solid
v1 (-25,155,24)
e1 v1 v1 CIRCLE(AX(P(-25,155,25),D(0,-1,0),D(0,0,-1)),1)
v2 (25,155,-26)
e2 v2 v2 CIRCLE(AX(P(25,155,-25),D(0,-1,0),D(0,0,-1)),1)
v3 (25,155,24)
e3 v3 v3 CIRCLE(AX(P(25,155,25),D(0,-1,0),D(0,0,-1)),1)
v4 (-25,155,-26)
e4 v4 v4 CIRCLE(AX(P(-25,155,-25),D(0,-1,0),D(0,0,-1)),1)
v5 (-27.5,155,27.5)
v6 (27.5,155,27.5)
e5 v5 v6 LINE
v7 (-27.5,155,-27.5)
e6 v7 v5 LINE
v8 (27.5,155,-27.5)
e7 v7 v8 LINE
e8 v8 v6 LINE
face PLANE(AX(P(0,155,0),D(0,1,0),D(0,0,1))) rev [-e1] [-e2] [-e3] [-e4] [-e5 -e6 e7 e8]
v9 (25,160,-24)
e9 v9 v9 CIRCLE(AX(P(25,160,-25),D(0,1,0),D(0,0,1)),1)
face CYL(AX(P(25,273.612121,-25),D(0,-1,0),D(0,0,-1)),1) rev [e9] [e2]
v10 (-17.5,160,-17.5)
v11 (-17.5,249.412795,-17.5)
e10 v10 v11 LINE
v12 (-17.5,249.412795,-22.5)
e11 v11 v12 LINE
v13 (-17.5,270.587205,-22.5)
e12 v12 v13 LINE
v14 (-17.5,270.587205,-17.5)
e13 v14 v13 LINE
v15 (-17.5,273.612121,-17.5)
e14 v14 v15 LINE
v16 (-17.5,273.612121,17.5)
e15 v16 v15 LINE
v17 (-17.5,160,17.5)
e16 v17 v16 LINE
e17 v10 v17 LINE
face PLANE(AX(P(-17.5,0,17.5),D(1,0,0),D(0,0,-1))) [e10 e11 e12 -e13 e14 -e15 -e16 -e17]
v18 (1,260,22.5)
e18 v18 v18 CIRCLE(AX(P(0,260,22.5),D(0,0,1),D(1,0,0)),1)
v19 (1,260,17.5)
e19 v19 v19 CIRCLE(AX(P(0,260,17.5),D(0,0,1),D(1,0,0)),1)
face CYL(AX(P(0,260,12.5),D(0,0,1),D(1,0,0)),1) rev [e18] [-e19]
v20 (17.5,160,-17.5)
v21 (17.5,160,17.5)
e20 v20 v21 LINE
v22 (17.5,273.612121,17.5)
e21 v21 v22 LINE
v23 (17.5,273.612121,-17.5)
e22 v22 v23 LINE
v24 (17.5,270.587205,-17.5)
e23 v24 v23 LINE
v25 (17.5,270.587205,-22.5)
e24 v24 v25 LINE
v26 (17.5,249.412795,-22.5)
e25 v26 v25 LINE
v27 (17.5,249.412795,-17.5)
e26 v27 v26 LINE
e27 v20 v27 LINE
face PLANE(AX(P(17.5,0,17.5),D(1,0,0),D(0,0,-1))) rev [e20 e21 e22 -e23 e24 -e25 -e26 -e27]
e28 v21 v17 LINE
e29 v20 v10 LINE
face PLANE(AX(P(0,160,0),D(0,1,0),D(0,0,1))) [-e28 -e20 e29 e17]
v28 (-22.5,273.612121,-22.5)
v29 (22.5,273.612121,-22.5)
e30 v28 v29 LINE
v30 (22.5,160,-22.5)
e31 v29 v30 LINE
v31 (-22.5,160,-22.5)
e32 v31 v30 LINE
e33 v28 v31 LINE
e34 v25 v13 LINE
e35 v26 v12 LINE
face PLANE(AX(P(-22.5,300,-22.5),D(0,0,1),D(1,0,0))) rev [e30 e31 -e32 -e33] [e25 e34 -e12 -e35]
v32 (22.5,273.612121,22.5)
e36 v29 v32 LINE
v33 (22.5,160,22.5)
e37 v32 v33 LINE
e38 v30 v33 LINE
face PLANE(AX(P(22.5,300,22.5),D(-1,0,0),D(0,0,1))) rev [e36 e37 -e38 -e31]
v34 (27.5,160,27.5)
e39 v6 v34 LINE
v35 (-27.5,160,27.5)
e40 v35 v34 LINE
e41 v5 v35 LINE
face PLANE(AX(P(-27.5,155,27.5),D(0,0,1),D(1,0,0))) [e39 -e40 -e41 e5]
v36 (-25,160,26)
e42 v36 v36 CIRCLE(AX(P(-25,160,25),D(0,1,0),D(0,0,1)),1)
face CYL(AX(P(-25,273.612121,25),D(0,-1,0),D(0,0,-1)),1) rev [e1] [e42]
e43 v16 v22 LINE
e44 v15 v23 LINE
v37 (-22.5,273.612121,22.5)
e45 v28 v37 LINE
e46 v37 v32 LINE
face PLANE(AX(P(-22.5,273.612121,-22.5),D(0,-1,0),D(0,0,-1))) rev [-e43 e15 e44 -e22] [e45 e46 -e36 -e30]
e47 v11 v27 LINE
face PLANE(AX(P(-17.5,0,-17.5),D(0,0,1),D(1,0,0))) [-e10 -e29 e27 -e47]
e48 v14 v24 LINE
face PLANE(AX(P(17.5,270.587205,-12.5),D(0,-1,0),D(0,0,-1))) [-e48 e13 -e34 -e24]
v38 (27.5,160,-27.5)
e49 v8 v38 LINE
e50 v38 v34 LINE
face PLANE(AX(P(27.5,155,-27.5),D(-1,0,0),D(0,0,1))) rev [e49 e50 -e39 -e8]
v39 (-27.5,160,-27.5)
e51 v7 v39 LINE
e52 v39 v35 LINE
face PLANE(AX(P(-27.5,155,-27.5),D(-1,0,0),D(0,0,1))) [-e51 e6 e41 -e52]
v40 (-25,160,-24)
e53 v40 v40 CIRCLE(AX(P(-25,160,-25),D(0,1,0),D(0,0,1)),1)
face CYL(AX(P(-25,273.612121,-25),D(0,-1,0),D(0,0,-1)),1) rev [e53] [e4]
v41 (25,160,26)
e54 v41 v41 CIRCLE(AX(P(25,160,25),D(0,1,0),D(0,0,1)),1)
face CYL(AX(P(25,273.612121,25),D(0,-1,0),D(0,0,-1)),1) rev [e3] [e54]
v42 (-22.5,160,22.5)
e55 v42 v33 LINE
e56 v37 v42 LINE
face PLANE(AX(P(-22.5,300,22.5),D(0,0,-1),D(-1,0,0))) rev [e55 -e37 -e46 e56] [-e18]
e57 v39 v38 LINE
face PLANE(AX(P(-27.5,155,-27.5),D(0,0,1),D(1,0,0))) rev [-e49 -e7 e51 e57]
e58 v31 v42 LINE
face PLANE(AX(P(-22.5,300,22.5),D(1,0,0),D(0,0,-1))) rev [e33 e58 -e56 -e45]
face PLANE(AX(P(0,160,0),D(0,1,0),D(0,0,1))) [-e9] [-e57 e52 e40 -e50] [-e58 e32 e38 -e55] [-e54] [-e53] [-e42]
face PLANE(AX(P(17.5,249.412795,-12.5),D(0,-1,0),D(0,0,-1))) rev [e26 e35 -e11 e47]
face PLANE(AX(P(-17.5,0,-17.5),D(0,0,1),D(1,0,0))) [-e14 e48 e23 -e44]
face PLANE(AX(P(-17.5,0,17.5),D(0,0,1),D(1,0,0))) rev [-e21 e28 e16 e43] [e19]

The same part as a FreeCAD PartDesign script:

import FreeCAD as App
import Part
import Sketcher

V = App.Vector
Q = App.Units.Quantity


def add_polygon(sketch, points):
    """Adds a closed chain of lines whose ends are joined by coincident constraints."""
    first, n = sketch.GeometryCount, len(points)
    for a, b in zip(points, points[1:] + points[:1]):
        sketch.addGeometry(Part.LineSegment(App.Vector(*a, 0), App.Vector(*b, 0)), False)
    for i in range(n):
        sketch.addConstraint(Sketcher.Constraint("Coincident", first + i, 2, first + (i + 1) % n, 1))

doc = App.newDocument("Part")
body = doc.addObject("PartDesign::Body", "Body")

# Sketch on XZ plane
sketch1 = body.newObject("Sketcher::SketchObject", "Sketch")
sketch1.AttachmentSupport = (doc.getObject("XZ_Plane"), [""])
sketch1.MapMode = "FlatFace"
add_polygon(sketch1, [(-22, -22), (-22, 22), (22, 22), (22, -22)])  # lines 0-3
sketch1.addConstraint([
    Sketcher.Constraint("Vertical", 0),
    Sketcher.Constraint("Horizontal", 1),
    Sketcher.Constraint("Vertical", 2),
    Sketcher.Constraint("Horizontal", 3),
    Sketcher.Constraint("Symmetric", 0, 2, 2, 2, -1, 1),
    Sketcher.Constraint("Equal", 3, 0),
    Sketcher.Constraint("DistanceX", 1, 1, 1, 2, Q("45 mm")),
])
pad1 = body.newObject("PartDesign::Pad", "Pad")
pad1.Profile = sketch1
pad1.Length = 300
pad1.Reversed = True

# Sketch on YZ plane
sketch2 = body.newObject("Sketcher::SketchObject", "Sketch001")
sketch2.AttachmentSupport = (doc.getObject("YZ_Plane"), [""])
sketch2.MapMode = "FlatFace"
sketch2.AttachmentOffset = App.Placement(V(0, 0, -22.5), App.Rotation())
add_polygon(sketch2, [(34, 4), (0, 4), (0, 22), (34, 22)])  # lines 0-3
sketch2.addConstraint([
    Sketcher.Constraint("Horizontal", 0),
    Sketcher.Constraint("Vertical", 1),
    Sketcher.Constraint("Horizontal", 2),
    Sketcher.Constraint("Vertical", 3),
    Sketcher.Constraint("PointOnObject", 0, 2, -2),
    Sketcher.Constraint("DistanceX", 0, 2, 0, 1, Q("34 mm")),
    Sketcher.Constraint("DistanceY", 1, 1, 1, 2, Q("18 mm")),
    Sketcher.Constraint("DistanceY", -1, 1, 0, 2, Q("4.5 mm")),
])
pocket1 = body.newObject("PartDesign::Pocket", "Pocket")
pocket1.Profile = sketch2
pocket1.Type = "ThroughAll"
pocket1.Reversed = True

# Sketch on XZ plane
sketch3 = body.newObject("Sketcher::SketchObject", "Sketch002")
sketch3.AttachmentSupport = (doc.getObject("XZ_Plane"), [""])
sketch3.MapMode = "FlatFace"
sketch3.AttachmentOffset = App.Placement(V(0, 0, -300), App.Rotation())
add_polygon(sketch3, [(-18, -18), (-18, 18), (18, 18), (18, -18)])  # lines 0-3
sketch3.addConstraint([
    Sketcher.Constraint("Vertical", 0),
    Sketcher.Constraint("Horizontal", 1),
    Sketcher.Constraint("Vertical", 2),
    Sketcher.Constraint("Horizontal", 3),
    Sketcher.Constraint("Symmetric", 0, 2, 2, 2, -1, 1),
    Sketcher.Constraint("Equal", 3, 0),
    Sketcher.Constraint("DistanceX", 1, 1, 1, 2, Q("35 mm")),
])
pocket2 = body.newObject("PartDesign::Pocket", "Pocket001")
pocket2.Profile = sketch3
pocket2.Type = "ThroughAll"
pocket2.Reversed = True

# Sketch on XY plane
sketch4 = body.newObject("Sketcher::SketchObject", "Sketch003")
sketch4.AttachmentSupport = (doc.getObject("XY_Plane"), [""])
sketch4.MapMode = "FlatFace"
sketch4.AttachmentOffset = App.Placement(V(0, 0, -22.5), App.Rotation())
add_polygon(sketch4, [(18, 271), (18, 249), (-18, 249), (-18, 271)])  # lines 0-3
sketch4.addConstraint([
    Sketcher.Constraint("Vertical", 0),
    Sketcher.Constraint("Horizontal", 1),
    Sketcher.Constraint("Vertical", 2),
    Sketcher.Constraint("Horizontal", 3),
    Sketcher.Constraint("DistanceX", 1, 2, 1, 1, Q("35 mm")),
    Sketcher.Constraint("DistanceX", -1, 1, 0, 2, Q("17.5 mm")),
    Sketcher.Constraint("DistanceY", 0, 2, 0, 1, Q("21.17441 mm")),
    Sketcher.Constraint("DistanceY", -1, 1, 0, 2, Q("249.412795 mm")),
])
pocket3 = body.newObject("PartDesign::Pocket", "Pocket002")
pocket3.Profile = sketch4
pocket3.Length = 10
pocket3.Reversed = True

# Sketch on XY plane
sketch5 = body.newObject("Sketcher::SketchObject", "Sketch004")
sketch5.AttachmentSupport = (doc.getObject("XY_Plane"), [""])
sketch5.MapMode = "FlatFace"
sketch5.AttachmentOffset = App.Placement(V(0, 0, 22.5), App.Rotation())
sketch5.addGeometry(Part.Circle(V(0, 260, 0), V(0, 0, 1), 1), False)
sketch5.addConstraint([
    Sketcher.Constraint("PointOnObject", 0, 3, -2),
    Sketcher.Constraint("Diameter", 0, Q("2 mm")),
    Sketcher.Constraint("DistanceY", -1, 1, 0, 3, Q("260 mm")),
])
pocket4 = body.newObject("PartDesign::Pocket", "Pocket003")
pocket4.Profile = sketch5
pocket4.Length = 10

# Sketch on XY plane
sketch6 = body.newObject("Sketcher::SketchObject", "Sketch005")
sketch6.AttachmentSupport = (doc.getObject("XY_Plane"), [""])
sketch6.MapMode = "FlatFace"
sketch6.AttachmentOffset = App.Placement(V(0, 0, 22.5), App.Rotation())
add_polygon(sketch6, [(-22, 300), (-22, 274), (22, 274), (22, 300)])  # lines 0-3
sketch6.addConstraint([
    Sketcher.Constraint("Vertical", 0),
    Sketcher.Constraint("Horizontal", 1),
    Sketcher.Constraint("Vertical", 2),
    Sketcher.Constraint("Horizontal", 3),
    Sketcher.Constraint("DistanceX", 1, 1, 1, 2, Q("45 mm")),
    Sketcher.Constraint("DistanceY", -1, 1, 2, 2, Q("300 mm")),
    Sketcher.Constraint("DistanceX", 0, 2, -1, 1, Q("22.5 mm")),
    Sketcher.Constraint("DistanceY", 0, 2, 0, 1, Q("26.387879 mm")),
])
pocket5 = body.newObject("PartDesign::Pocket", "Pocket004")
pocket5.Profile = sketch6
pocket5.Type = "ThroughAll"

# Sketch on YZ plane
sketch7 = body.newObject("Sketcher::SketchObject", "Sketch006")
sketch7.AttachmentSupport = (doc.getObject("YZ_Plane"), [""])
sketch7.MapMode = "FlatFace"
add_polygon(sketch7, [(160, 22), (0, 22), (0, -22), (160, -22)])  # lines 0-3
sketch7.addConstraint([
    Sketcher.Constraint("Horizontal", 0),
    Sketcher.Constraint("Vertical", 1),
    Sketcher.Constraint("Horizontal", 2),
    Sketcher.Constraint("Vertical", 3),
    Sketcher.Constraint("Symmetric", 0, 2, 1, 2, -1, 1),
    Sketcher.Constraint("DistanceX", 0, 2, 0, 1, Q("160 mm")),
    Sketcher.Constraint("DistanceY", 1, 2, 1, 1, Q("45 mm")),
])
pocket6 = body.newObject("PartDesign::Pocket", "Pocket005")
pocket6.Profile = sketch7
pocket6.Type = "ThroughAll"
pocket6.Midplane = True

# Sketch on XZ plane
sketch8 = body.newObject("Sketcher::SketchObject", "Sketch007")
sketch8.AttachmentSupport = (doc.getObject("XZ_Plane"), [""])
sketch8.MapMode = "FlatFace"
sketch8.AttachmentOffset = App.Placement(V(0, 0, -160), App.Rotation())
add_polygon(sketch8, [(-28, 28), (-28, -28), (28, -28), (28, 28)])  # lines 0-3
sketch8.addConstraint([
    Sketcher.Constraint("Vertical", 0),
    Sketcher.Constraint("Horizontal", 1),
    Sketcher.Constraint("Vertical", 2),
    Sketcher.Constraint("Horizontal", 3),
    Sketcher.Constraint("Symmetric", 0, 2, 2, 2, -1, 1),
    Sketcher.Constraint("Equal", 3, 0),
    Sketcher.Constraint("DistanceX", 1, 1, 1, 2, Q("55 mm")),
])
pad2 = body.newObject("PartDesign::Pad", "Pad001")
pad2.Profile = sketch8
pad2.Length = 5

# Sketch on XZ plane
sketch9 = body.newObject("Sketcher::SketchObject", "Sketch008")
sketch9.AttachmentSupport = (doc.getObject("XZ_Plane"), [""])
sketch9.MapMode = "FlatFace"
sketch9.AttachmentOffset = App.Placement(V(0, 0, -155), App.Rotation())
sketch9.addGeometry([
    Part.Circle(V(25, 25, 0), V(0, 0, 1), 1),
    Part.Circle(V(-25, 25, 0), V(0, 0, 1), 1),
    Part.Circle(V(-25, -25, 0), V(0, 0, 1), 1),
    Part.Circle(V(25, -25, 0), V(0, 0, 1), 1),
], False)
sketch9.addConstraint([
    Sketcher.Constraint("Equal", 0, 1),
    Sketcher.Constraint("Equal", 1, 2),
    Sketcher.Constraint("Equal", 2, 3),
    Sketcher.Constraint("Symmetric", 0, 3, 2, 3, -1, 1),
    Sketcher.Constraint("Symmetric", 1, 3, 3, 3, -1, 1),
    Sketcher.Constraint("Symmetric", 0, 3, 1, 3, -2),
    Sketcher.Constraint("Diameter", 0, Q("2 mm")),
    Sketcher.Constraint("DistanceX", -1, 1, 0, 3, Q("25 mm")),
    Sketcher.Constraint("DistanceY", -1, 1, 0, 3, Q("25 mm")),
])
pocket7 = body.newObject("PartDesign::Pocket", "Pocket006")
pocket7.Profile = sketch9
pocket7.Type = "ThroughAll"
pocket7.Midplane = True

doc.recompute()
